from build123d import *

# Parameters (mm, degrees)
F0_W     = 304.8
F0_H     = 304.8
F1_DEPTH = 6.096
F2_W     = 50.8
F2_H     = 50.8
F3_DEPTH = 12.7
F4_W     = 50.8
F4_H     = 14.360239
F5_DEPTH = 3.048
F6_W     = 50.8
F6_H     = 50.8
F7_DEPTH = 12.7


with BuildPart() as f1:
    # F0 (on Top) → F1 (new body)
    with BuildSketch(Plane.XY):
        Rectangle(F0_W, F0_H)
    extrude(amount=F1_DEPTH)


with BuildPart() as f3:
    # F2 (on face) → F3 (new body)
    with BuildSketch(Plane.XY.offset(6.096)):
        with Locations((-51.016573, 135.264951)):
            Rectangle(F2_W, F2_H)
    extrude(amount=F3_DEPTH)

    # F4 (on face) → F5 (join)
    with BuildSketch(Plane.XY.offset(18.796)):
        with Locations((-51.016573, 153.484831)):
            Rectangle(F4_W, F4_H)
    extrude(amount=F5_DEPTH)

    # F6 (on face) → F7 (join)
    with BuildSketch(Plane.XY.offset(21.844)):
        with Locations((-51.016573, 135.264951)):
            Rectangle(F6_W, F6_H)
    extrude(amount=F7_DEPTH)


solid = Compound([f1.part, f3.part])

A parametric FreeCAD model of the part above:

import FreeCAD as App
import Part
import Sketcher

V = App.Vector
Q = App.Units.Quantity

doc = App.newDocument("Part")
body = doc.addObject("PartDesign::Body", "Body")

# Sketch on XY plane
sketch1 = doc.addObject("Sketcher::SketchObject", "Sketch")
body.addObject(sketch1)
sketch1.AttachmentSupport = (doc.XY_Plane, [""])
sketch1.MapMode = "FlatFace"
sketch1.addGeometry([
    Part.LineSegment(V(-152, 152, 0), V(-152, -152, 0)),
    Part.LineSegment(V(-152, -152, 0), V(152, -152, 0)),
    Part.LineSegment(V(152, -152, 0), V(152, 152, 0)),
    Part.LineSegment(V(152, 152, 0), V(-152, 152, 0)),
], False)
sketch1.addConstraint([
    Sketcher.Constraint("Coincident", 0, 2, 1, 1),
    Sketcher.Constraint("Coincident", 1, 2, 2, 1),
    Sketcher.Constraint("Coincident", 2, 2, 3, 1),
    Sketcher.Constraint("Coincident", 3, 2, 0, 1),
    Sketcher.Constraint("Vertical", 0),
    Sketcher.Constraint("Horizontal", 1),
    Sketcher.Constraint("Vertical", 2),
    Sketcher.Constraint("Horizontal", 3),
    Sketcher.Constraint("Symmetric", 0, 2, 2, 2, -1, 1),
    Sketcher.Constraint("Equal", 3, 0),
    Sketcher.Constraint("DistanceX", 1, 1, 1, 2, Q("12 in")),
])
pad1 = doc.addObject("PartDesign::Pad", "Pad")
body.addObject(pad1)
pad1.Profile = sketch1
pad1.Length = Q("0.24 in")
body2 = doc.addObject("PartDesign::Body", "Body001")

# Sketch on XY plane
sketch2 = doc.addObject("Sketcher::SketchObject", "Sketch001")
body2.addObject(sketch2)
sketch2.AttachmentSupport = (doc.getObject("XY_Plane001"), [""])
sketch2.MapMode = "FlatFace"
sketch2.AttachmentOffset = App.Placement(V(0, 0, 0.24 * 25.4), App.Rotation())
sketch2.addGeometry([
    Part.LineSegment(V(-76, 161, 0), V(-76, 110, 0)),
    Part.LineSegment(V(-76, 110, 0), V(-26, 110, 0)),
    Part.LineSegment(V(-26, 110, 0), V(-26, 161, 0)),
    Part.LineSegment(V(-26, 161, 0), V(-76, 161, 0)),
], False)
sketch2.addConstraint([
    Sketcher.Constraint("Coincident", 0, 2, 1, 1),
    Sketcher.Constraint("Coincident", 1, 2, 2, 1),
    Sketcher.Constraint("Coincident", 2, 2, 3, 1),
    Sketcher.Constraint("Coincident", 3, 2, 0, 1),
    Sketcher.Constraint("Vertical", 0),
    Sketcher.Constraint("Horizontal", 1),
    Sketcher.Constraint("Vertical", 2),
    Sketcher.Constraint("Horizontal", 3),
    Sketcher.Constraint("Equal", 3, 0),
    Sketcher.Constraint("DistanceX", 1, 1, 1, 2, Q("2 in")),
    Sketcher.Constraint("DistanceY", -1, 1, 0, 2, 109.864951),
    Sketcher.Constraint("DistanceX", 0, 2, -1, 1, 76.416573),
])
pad2 = doc.addObject("PartDesign::Pad", "Pad001")
body2.addObject(pad2)
pad2.Profile = sketch2
pad2.Length = Q("0.5 in")

# Sketch on XY plane
sketch3 = doc.addObject("Sketcher::SketchObject", "Sketch002")
body2.addObject(sketch3)
sketch3.AttachmentSupport = (doc.getObject("XY_Plane001"), [""])
sketch3.MapMode = "FlatFace"
sketch3.AttachmentOffset = App.Placement(V(0, 0, 0.74 * 25.4), App.Rotation())
sketch3.addGeometry([
    Part.LineSegment(V(-76, 161, 0), V(-76, 146, 0)),
    Part.LineSegment(V(-76, 146, 0), V(-26, 146, 0)),
    Part.LineSegment(V(-26, 146, 0), V(-26, 161, 0)),
    Part.LineSegment(V(-26, 161, 0), V(-76, 161, 0)),
], False)
sketch3.addConstraint([
    Sketcher.Constraint("Coincident", 0, 2, 1, 1),
    Sketcher.Constraint("Coincident", 1, 2, 2, 1),
    Sketcher.Constraint("Coincident", 2, 2, 3, 1),
    Sketcher.Constraint("Coincident", 3, 2, 0, 1),
    Sketcher.Constraint("Vertical", 0),
    Sketcher.Constraint("Horizontal", 1),
    Sketcher.Constraint("Vertical", 2),
    Sketcher.Constraint("Horizontal", 3),
    Sketcher.Constraint("DistanceX", 1, 1, 1, 2, Q("2 in")),
    Sketcher.Constraint("DistanceY", 0, 2, 0, 1, 14.360239),
    Sketcher.Constraint("DistanceY", -1, 1, 0, 2, 146.304711),
    Sketcher.Constraint("DistanceX", 0, 2, -1, 1, 76.416573),
])
pad3 = doc.addObject("PartDesign::Pad", "Pad002")
body2.addObject(pad3)
pad3.Profile = sketch3
pad3.Length = Q("0.12 in")

# Sketch on XY plane
sketch4 = doc.addObject("Sketcher::SketchObject", "Sketch003")
body2.addObject(sketch4)
sketch4.AttachmentSupport = (doc.getObject("XY_Plane001"), [""])
sketch4.MapMode = "FlatFace"
sketch4.AttachmentOffset = App.Placement(V(0, 0, 0.86 * 25.4), App.Rotation())
sketch4.addGeometry([
    Part.LineSegment(V(-76, 161, 0), V(-76, 110, 0)),
    Part.LineSegment(V(-76, 110, 0), V(-26, 110, 0)),
    Part.LineSegment(V(-26, 110, 0), V(-26, 161, 0)),
    Part.LineSegment(V(-26, 161, 0), V(-76, 161, 0)),
], False)
sketch4.addConstraint([
    Sketcher.Constraint("Coincident", 0, 2, 1, 1),
    Sketcher.Constraint("Coincident", 1, 2, 2, 1),
    Sketcher.Constraint("Coincident", 2, 2, 3, 1),
    Sketcher.Constraint("Coincident", 3, 2, 0, 1),
    Sketcher.Constraint("Vertical", 0),
    Sketcher.Constraint("Horizontal", 1),
    Sketcher.Constraint("Vertical", 2),
    Sketcher.Constraint("Horizontal", 3),
    Sketcher.Constraint("Equal", 3, 0),
    Sketcher.Constraint("DistanceX", 1, 1, 1, 2, Q("2 in")),
    Sketcher.Constraint("DistanceY", -1, 1, 0, 2, 109.864951),
    Sketcher.Constraint("DistanceX", 0, 2, -1, 1, 76.416573),
])
pad4 = doc.addObject("PartDesign::Pad", "Pad003")
body2.addObject(pad4)
pad4.Profile = sketch4
pad4.Length = Q("0.5 in")

doc.recompute()
